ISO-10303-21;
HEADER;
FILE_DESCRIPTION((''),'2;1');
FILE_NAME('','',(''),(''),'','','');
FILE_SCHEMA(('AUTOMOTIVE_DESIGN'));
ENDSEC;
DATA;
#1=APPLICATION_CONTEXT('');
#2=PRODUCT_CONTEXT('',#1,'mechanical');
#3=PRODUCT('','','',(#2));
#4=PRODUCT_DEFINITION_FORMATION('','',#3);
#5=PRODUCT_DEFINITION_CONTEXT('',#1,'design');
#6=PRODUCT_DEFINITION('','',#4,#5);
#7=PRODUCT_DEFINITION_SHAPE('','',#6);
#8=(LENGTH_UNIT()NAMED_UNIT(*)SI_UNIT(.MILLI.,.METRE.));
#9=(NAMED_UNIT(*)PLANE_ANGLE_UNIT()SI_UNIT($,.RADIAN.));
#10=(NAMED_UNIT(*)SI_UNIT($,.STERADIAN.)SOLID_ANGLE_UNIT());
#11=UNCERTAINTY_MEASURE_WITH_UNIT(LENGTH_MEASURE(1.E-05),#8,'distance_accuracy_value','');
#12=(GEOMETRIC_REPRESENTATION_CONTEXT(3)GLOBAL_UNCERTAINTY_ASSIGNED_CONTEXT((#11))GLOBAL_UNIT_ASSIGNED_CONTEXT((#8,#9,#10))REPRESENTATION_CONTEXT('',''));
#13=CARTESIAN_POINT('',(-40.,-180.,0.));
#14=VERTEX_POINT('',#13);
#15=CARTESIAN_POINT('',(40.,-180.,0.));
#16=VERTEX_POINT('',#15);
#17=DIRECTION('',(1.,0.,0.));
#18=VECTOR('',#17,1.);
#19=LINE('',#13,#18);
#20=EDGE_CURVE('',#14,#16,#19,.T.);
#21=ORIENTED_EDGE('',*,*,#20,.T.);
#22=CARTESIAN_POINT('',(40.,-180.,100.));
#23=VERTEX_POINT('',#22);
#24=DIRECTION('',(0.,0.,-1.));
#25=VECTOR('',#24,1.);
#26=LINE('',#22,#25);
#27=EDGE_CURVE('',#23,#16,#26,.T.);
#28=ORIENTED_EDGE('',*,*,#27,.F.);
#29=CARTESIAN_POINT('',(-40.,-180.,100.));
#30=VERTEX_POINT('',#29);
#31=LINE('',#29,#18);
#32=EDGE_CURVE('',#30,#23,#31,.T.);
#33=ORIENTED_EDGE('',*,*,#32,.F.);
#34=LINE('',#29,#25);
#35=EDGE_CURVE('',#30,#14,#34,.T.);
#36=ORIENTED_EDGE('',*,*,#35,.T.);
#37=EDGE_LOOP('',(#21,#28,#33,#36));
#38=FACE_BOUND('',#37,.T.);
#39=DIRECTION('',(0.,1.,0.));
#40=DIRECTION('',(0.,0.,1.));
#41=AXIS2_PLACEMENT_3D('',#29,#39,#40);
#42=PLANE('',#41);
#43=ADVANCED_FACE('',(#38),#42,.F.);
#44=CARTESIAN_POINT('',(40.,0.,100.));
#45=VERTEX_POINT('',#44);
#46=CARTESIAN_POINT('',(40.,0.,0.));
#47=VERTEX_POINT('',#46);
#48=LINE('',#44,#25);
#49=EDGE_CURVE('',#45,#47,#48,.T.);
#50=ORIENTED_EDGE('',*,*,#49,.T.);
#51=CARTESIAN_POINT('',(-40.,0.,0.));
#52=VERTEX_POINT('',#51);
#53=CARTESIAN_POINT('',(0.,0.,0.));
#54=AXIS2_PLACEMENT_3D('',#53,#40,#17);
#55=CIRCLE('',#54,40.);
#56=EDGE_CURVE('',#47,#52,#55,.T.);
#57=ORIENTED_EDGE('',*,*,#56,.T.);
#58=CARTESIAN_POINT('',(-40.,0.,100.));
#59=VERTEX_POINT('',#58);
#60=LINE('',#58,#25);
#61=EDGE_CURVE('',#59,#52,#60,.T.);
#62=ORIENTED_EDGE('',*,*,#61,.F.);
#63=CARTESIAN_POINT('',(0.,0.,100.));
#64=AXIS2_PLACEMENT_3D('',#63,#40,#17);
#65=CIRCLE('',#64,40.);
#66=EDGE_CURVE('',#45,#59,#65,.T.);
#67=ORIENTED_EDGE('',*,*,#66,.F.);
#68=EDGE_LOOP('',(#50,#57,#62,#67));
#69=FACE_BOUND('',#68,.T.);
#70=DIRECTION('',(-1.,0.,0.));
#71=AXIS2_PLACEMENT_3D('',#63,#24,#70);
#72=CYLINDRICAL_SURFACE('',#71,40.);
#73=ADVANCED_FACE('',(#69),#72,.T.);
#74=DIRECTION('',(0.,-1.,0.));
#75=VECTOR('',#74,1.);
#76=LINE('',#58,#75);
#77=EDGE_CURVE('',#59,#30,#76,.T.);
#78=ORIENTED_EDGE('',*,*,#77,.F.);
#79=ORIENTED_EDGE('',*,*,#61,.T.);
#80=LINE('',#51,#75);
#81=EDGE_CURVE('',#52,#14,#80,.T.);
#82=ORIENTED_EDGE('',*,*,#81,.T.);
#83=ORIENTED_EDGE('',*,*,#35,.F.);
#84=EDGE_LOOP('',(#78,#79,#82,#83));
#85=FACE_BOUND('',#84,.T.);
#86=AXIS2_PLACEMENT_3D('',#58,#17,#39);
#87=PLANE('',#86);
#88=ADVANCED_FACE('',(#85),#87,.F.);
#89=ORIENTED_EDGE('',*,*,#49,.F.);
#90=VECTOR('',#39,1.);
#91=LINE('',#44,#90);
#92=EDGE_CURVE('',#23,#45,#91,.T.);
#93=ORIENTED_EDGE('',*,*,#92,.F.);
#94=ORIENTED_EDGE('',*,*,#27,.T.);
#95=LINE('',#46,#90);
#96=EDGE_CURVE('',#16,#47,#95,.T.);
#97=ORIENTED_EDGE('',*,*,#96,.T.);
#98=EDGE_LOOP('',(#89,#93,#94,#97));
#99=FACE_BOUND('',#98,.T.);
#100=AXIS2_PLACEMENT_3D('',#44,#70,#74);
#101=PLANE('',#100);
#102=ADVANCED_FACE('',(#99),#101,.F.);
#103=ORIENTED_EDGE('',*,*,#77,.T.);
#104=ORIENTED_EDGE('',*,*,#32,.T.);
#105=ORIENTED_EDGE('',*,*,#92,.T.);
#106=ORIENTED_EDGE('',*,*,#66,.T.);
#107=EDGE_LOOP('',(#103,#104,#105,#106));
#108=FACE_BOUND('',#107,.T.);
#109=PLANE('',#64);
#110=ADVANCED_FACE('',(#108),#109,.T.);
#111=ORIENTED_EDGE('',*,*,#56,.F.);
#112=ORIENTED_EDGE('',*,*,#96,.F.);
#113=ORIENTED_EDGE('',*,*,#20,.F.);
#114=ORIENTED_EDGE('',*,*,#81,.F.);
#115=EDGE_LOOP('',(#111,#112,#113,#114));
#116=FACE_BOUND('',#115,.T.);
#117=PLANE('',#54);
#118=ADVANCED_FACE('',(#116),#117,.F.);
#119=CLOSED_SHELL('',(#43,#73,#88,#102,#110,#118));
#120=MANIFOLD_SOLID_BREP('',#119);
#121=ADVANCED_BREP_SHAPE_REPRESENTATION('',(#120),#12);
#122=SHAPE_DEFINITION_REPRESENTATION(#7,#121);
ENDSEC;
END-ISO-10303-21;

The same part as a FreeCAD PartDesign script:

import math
import FreeCAD as App
import Part
import Sketcher

V = App.Vector

doc = App.newDocument("Part")
body = doc.addObject("PartDesign::Body", "Body")

sketch1 = doc.addObject("Sketcher::SketchObject", "Sketch")
body.addObject(sketch1)
sketch1.AttachmentSupport = (doc.XY_Plane, [""])
sketch1.MapMode = "FlatFace"
sketch1.addGeometry([
    Part.LineSegment(V(-40, 0, 0), V(-40, -180, 0)),
    Part.LineSegment(V(-40, -180, 0), V(40, -180, 0)),
    Part.LineSegment(V(40, -180, 0), V(40, 0, 0)),
    Part.ArcOfCircle(Part.Circle(V(0, 0, 0), V(0, 0, 1), 40), math.radians(0), math.radians(180)),
], False)
sketch1.addConstraint([
    Sketcher.Constraint("Coincident", 0, 2, 1, 1),
    Sketcher.Constraint("Coincident", 1, 2, 2, 1),
    Sketcher.Constraint("Tangent", 2, 2, 3, 1),
    Sketcher.Constraint("Tangent", 3, 2, 0, 1),
    Sketcher.Constraint("Vertical", 0),
    Sketcher.Constraint("Horizontal", 1),
    Sketcher.Constraint("Vertical", 2),
    Sketcher.Constraint("Coincident", 3, 3, -1, 1),
    Sketcher.Constraint("Radius", 3, 40.0),
    Sketcher.Constraint("DistanceY", 0, 2, 0, 1, 180.0),
])
pad1 = doc.addObject("PartDesign::Pad", "Pad")
body.addObject(pad1)
pad1.Profile = sketch1
pad1.Length = 100

doc.recompute()
